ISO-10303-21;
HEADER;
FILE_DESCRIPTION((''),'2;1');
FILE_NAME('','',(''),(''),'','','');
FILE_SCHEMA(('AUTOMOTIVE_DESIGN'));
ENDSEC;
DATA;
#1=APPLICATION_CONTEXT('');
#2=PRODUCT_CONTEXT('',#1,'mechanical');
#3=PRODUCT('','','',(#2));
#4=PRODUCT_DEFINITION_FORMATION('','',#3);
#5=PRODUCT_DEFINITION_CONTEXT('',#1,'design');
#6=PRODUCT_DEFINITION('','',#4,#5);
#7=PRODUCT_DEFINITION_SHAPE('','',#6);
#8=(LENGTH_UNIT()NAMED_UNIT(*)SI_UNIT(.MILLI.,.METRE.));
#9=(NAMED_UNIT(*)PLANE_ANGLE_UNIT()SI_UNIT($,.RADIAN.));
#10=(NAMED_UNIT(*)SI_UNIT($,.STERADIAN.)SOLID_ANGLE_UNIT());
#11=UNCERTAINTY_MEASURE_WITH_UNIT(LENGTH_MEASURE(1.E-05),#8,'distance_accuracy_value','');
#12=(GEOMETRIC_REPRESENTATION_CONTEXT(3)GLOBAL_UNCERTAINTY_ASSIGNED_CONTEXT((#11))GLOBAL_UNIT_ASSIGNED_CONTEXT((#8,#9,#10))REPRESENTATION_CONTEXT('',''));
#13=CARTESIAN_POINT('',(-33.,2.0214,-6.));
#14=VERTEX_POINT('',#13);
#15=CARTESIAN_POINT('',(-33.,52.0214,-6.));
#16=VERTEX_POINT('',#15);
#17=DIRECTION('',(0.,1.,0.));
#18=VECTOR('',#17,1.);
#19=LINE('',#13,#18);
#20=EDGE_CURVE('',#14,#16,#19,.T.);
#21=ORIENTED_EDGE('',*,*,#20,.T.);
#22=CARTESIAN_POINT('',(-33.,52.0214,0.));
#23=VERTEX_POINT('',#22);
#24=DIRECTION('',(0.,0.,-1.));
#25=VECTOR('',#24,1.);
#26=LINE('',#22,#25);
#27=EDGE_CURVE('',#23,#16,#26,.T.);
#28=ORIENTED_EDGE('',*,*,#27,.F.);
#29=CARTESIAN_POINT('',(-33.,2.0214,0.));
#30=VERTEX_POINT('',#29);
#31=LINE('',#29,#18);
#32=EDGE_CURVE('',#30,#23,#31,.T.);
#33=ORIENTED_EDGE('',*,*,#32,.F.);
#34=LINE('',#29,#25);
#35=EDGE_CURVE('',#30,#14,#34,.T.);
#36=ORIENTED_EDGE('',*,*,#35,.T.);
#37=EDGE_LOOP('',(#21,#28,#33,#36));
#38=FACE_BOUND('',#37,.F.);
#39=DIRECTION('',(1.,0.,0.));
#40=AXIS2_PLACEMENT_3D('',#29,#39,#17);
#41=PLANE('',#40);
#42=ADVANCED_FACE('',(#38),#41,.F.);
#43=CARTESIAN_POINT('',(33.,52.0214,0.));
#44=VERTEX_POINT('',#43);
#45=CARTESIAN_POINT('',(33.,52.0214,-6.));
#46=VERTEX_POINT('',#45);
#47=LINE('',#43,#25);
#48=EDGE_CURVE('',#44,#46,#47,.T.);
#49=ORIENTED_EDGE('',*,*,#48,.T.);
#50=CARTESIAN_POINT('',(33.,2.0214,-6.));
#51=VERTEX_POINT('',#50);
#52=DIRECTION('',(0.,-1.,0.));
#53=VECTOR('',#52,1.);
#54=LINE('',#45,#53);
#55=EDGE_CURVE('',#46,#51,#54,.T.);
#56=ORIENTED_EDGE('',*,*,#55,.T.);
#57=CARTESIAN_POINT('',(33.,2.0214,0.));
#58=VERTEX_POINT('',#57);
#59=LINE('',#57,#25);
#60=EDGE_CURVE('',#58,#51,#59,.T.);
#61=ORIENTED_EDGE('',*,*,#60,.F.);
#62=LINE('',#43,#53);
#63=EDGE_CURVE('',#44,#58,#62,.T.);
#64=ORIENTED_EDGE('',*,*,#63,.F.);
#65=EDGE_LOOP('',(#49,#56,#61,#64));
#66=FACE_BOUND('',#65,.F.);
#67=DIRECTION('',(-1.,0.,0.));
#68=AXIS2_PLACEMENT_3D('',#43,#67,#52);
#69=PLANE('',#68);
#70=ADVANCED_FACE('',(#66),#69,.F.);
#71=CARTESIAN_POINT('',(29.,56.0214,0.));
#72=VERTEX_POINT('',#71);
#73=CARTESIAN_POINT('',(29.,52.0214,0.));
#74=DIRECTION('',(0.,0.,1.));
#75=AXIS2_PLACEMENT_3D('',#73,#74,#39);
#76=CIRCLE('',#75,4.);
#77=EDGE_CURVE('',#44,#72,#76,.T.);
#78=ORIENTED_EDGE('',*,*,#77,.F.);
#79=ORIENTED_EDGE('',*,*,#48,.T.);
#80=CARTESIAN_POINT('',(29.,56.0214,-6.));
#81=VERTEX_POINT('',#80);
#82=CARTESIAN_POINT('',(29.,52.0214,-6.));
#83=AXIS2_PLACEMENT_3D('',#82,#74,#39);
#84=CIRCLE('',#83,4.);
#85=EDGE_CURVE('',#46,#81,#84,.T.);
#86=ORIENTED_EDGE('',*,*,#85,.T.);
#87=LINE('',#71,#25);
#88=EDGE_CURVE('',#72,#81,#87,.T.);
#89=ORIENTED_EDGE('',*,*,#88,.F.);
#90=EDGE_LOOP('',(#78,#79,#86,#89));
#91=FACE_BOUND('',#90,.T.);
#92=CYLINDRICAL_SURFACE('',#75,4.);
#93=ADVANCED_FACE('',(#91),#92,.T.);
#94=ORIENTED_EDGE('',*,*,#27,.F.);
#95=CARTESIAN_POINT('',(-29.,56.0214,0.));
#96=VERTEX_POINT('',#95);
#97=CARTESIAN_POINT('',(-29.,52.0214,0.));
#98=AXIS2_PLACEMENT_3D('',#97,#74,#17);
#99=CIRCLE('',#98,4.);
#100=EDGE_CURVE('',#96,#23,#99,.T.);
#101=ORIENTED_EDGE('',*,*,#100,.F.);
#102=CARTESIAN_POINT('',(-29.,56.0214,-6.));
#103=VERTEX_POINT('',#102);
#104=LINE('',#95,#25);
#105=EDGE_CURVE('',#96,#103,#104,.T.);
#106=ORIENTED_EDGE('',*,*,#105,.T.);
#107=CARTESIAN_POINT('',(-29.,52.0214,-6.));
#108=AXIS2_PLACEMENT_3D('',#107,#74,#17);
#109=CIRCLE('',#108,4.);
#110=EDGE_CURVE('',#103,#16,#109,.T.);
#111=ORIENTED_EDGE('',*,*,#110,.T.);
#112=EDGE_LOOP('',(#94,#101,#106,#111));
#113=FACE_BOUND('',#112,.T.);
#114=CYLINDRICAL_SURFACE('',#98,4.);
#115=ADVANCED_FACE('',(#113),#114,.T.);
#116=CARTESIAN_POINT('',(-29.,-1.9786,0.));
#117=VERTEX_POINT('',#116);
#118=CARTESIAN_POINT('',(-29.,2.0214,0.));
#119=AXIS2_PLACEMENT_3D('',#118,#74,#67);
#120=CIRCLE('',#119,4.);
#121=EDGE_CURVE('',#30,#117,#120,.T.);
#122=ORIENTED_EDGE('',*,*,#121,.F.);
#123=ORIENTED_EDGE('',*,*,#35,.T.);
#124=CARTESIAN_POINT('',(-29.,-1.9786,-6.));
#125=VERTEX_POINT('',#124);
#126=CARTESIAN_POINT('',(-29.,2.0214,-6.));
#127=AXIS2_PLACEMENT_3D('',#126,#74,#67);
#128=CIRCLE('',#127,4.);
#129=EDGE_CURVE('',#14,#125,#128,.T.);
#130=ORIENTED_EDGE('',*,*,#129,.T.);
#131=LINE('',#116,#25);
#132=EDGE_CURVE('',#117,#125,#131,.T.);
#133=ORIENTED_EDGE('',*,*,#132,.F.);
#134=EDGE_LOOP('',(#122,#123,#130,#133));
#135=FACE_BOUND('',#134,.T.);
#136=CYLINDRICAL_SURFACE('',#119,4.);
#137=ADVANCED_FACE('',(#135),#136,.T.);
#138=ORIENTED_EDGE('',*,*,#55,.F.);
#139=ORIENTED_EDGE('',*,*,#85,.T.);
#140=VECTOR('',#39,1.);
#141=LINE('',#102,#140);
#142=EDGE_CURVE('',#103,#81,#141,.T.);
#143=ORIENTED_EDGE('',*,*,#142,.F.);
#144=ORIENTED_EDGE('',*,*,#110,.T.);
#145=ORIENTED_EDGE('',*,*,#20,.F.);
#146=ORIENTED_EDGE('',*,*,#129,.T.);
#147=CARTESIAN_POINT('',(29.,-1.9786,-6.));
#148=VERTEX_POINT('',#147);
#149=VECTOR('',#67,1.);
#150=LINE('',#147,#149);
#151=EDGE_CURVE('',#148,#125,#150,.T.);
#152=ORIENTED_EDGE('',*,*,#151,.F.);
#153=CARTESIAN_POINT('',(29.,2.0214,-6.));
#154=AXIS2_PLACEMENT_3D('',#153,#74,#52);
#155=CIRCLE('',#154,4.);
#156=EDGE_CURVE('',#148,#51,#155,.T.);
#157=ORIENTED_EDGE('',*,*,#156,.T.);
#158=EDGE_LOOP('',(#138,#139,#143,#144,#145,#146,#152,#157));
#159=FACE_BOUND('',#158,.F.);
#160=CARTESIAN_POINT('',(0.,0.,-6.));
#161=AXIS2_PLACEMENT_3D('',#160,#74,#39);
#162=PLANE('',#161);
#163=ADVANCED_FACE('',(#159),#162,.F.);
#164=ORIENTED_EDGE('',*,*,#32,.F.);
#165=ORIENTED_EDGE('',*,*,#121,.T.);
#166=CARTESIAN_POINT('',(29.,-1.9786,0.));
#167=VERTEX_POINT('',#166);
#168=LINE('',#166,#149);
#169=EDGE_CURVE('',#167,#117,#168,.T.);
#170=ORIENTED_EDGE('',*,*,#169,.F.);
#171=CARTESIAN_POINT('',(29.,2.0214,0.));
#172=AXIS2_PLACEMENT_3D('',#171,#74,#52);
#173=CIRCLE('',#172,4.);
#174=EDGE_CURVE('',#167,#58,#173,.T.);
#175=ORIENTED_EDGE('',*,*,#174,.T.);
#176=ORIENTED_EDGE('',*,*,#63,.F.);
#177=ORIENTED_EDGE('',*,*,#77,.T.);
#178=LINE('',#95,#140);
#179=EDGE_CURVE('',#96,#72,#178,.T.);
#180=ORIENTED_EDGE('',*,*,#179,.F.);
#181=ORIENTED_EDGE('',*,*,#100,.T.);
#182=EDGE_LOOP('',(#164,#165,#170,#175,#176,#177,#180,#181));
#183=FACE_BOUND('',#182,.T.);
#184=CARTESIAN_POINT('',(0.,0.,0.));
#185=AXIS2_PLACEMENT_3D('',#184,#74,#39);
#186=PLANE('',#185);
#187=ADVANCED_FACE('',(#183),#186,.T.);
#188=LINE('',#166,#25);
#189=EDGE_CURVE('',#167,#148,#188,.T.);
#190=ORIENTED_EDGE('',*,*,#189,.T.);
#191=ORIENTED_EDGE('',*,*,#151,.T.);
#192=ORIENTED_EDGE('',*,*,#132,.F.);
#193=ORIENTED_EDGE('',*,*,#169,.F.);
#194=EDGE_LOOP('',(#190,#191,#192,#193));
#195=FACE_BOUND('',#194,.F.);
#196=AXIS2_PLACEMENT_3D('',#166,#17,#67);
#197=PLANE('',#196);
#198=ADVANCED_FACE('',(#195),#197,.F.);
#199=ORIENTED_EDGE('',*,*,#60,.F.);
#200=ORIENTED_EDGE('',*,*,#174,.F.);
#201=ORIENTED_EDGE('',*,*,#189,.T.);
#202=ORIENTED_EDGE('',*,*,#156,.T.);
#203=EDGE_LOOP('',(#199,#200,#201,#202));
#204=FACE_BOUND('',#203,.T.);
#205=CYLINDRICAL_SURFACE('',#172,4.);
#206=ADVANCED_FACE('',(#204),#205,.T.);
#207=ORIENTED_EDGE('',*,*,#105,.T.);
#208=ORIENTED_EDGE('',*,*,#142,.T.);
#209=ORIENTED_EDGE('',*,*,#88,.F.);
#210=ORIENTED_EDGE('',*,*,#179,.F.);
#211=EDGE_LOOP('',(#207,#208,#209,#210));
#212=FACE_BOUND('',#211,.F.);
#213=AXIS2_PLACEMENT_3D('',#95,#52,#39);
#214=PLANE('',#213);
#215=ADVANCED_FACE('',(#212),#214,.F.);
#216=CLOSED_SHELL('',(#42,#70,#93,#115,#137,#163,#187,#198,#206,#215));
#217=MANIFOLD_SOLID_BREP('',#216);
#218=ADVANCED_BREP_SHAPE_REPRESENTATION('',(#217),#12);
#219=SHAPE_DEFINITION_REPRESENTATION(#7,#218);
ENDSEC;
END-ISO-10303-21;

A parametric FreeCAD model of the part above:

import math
import FreeCAD as App
import Part
import Sketcher
Q = App.Units.Quantity

doc = App.newDocument("Part")
body = doc.addObject("PartDesign::Body", "Body")

sketch1 = body.newObject("Sketcher::SketchObject", "Sketch")
sketch1.AttachmentSupport = (doc.getObject("XY_Plane"), [""])
sketch1.MapMode = "FlatFace"
sketch1.addGeometry([
    Part.LineSegment(App.Vector(-29, -2, 0), App.Vector(29, -2, 0)),
    Part.ArcOfCircle(Part.Circle(App.Vector(29, 2, 0), App.Vector(0, 0, 1), 4), math.radians(-90), math.radians(0)),
    Part.LineSegment(App.Vector(33, 2, 0), App.Vector(33, 52, 0)),
    Part.ArcOfCircle(Part.Circle(App.Vector(29, 52, 0), App.Vector(0, 0, 1), 4), math.radians(0), math.radians(90)),
    Part.LineSegment(App.Vector(29, 56, 0), App.Vector(-29, 56, 0)),
    Part.ArcOfCircle(Part.Circle(App.Vector(-29, 52, 0), App.Vector(0, 0, 1), 4), math.radians(90), math.radians(180)),
    Part.LineSegment(App.Vector(-33, 52, 0), App.Vector(-33, 2, 0)),
    Part.ArcOfCircle(Part.Circle(App.Vector(-29, 2, 0), App.Vector(0, 0, 1), 4), math.radians(180), math.radians(270)),
], False)
sketch1.addConstraint([
    Sketcher.Constraint("Tangent", 0, 2, 1, 1),
    Sketcher.Constraint("Tangent", 1, 2, 2, 1),
    Sketcher.Constraint("Tangent", 2, 2, 3, 1),
    Sketcher.Constraint("Tangent", 3, 2, 4, 1),
    Sketcher.Constraint("Tangent", 4, 2, 5, 1),
    Sketcher.Constraint("Tangent", 5, 2, 6, 1),
    Sketcher.Constraint("Tangent", 6, 2, 7, 1),
    Sketcher.Constraint("Tangent", 7, 2, 0, 1),
    Sketcher.Constraint("Horizontal", 0),
    Sketcher.Constraint("Vertical", 2),
    Sketcher.Constraint("Horizontal", 4),
    Sketcher.Constraint("Vertical", 6),
    Sketcher.Constraint("Equal", 1, 3),
    Sketcher.Constraint("Equal", 3, 5),
    Sketcher.Constraint("Equal", 5, 7),
    Sketcher.Constraint("Radius", 1, Q("4 mm")),
    Sketcher.Constraint("DistanceX", 0, 1, 0, 2, Q("58 mm")),
    Sketcher.Constraint("DistanceY", 2, 1, 2, 2, Q("50 mm")),
    Sketcher.Constraint("DistanceX", -1, 1, 1, 3, Q("29 mm")),
    Sketcher.Constraint("DistanceY", -1, 1, 1, 3, Q("2.0214 mm")),
])
pad1 = body.newObject("PartDesign::Pad", "Pad")
pad1.Profile = sketch1
pad1.Length = 6
pad1.Reversed = True

doc.recompute()
